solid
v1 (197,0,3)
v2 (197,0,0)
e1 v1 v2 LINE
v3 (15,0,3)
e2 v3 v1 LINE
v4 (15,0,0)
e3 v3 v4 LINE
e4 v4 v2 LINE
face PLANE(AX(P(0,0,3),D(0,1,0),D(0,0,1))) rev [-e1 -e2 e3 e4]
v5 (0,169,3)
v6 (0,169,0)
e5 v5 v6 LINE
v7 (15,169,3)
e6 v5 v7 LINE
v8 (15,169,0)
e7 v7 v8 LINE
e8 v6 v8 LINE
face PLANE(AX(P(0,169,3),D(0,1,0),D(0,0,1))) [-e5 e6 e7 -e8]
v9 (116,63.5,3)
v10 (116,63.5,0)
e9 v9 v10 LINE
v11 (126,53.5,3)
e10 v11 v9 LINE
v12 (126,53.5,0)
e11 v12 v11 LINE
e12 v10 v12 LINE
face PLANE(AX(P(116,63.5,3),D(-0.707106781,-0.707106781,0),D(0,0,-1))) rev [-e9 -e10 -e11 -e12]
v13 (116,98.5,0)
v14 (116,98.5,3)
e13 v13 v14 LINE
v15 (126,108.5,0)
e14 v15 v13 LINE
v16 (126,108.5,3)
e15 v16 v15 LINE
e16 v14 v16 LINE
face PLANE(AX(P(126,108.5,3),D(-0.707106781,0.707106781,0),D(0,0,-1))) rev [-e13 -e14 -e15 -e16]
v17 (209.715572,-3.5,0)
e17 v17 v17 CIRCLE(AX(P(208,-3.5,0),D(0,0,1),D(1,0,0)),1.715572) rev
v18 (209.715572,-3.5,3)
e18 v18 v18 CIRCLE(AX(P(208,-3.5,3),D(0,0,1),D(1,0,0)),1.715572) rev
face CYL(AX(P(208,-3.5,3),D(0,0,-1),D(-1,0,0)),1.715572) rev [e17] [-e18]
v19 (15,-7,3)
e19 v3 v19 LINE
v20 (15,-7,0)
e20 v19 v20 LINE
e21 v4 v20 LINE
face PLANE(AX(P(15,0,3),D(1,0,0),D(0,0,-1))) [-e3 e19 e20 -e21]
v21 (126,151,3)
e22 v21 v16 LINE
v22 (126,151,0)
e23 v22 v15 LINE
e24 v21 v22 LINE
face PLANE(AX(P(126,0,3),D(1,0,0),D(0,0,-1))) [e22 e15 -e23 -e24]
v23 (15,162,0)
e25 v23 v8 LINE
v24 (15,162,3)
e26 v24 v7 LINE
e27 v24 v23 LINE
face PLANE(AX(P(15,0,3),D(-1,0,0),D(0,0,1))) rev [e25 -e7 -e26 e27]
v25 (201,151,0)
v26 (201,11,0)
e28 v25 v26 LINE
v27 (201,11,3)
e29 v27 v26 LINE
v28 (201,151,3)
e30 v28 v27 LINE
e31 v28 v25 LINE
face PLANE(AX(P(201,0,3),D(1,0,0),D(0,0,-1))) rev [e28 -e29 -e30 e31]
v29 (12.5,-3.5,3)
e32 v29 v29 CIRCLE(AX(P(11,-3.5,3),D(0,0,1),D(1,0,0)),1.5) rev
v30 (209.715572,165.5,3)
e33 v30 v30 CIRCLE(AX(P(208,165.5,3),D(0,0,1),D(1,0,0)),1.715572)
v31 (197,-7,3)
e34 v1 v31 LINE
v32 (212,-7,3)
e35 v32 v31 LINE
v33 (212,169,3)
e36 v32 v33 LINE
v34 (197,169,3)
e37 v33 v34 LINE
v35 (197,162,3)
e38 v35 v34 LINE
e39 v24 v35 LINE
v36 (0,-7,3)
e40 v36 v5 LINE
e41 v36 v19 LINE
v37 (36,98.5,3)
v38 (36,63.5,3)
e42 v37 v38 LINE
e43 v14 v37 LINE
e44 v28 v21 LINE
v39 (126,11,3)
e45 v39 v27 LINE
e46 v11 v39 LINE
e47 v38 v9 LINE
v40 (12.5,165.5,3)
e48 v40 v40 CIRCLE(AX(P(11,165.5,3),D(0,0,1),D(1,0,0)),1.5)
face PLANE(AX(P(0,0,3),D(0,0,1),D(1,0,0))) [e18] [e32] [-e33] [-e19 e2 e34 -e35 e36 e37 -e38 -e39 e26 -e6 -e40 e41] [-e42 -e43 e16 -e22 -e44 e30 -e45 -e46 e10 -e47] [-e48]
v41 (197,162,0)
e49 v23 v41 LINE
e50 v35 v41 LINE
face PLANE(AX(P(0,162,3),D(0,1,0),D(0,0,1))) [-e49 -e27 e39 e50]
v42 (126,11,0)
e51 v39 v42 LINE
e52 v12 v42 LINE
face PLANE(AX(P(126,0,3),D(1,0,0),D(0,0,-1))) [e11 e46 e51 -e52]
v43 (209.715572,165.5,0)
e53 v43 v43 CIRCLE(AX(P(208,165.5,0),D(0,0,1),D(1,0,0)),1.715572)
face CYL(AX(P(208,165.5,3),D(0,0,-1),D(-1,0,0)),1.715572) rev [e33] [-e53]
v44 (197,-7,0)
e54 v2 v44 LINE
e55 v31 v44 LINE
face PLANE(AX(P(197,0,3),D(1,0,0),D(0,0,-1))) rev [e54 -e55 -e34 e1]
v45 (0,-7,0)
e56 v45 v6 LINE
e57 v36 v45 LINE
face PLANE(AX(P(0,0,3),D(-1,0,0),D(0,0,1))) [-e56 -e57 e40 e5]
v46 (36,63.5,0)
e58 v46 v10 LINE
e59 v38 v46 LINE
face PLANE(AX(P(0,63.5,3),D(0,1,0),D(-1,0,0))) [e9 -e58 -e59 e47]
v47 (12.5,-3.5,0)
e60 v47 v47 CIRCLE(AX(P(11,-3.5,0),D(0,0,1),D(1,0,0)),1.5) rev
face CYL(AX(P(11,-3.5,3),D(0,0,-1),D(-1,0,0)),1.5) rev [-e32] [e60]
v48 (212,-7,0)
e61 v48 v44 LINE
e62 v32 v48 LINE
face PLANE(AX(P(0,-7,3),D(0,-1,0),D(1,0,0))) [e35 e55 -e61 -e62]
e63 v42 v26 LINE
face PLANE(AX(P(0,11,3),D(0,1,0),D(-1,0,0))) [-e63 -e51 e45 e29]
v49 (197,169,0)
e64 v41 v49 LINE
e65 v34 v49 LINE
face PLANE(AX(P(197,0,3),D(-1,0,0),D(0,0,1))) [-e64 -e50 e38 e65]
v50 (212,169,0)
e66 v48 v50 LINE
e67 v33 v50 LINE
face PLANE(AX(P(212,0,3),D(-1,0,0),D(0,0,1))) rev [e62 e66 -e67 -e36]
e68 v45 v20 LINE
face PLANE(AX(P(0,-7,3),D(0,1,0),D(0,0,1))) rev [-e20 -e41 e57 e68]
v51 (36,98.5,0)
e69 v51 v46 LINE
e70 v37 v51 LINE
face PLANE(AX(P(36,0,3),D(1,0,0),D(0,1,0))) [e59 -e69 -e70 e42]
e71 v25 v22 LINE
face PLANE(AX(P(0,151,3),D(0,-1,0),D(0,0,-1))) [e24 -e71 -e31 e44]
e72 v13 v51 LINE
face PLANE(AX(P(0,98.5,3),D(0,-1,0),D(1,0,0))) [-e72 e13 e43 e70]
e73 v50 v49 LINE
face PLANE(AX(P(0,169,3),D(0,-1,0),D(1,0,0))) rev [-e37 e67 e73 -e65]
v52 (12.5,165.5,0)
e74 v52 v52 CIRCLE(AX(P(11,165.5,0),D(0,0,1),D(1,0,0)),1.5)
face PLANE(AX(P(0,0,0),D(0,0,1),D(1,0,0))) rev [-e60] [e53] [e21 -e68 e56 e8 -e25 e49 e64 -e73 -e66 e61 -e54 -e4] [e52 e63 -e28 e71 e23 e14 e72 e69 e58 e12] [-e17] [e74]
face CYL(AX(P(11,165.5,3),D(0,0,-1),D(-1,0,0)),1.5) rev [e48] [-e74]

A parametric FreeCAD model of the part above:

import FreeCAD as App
import Part
import Sketcher

V = App.Vector
Q = App.Units.Quantity


def edges_at(feature, points):
    """Names of the edges that pass closest to the given points."""
    edges = feature.Shape.Edges
    near = lambda p: min(range(len(edges)), key=lambda i: edges[i].distToShape(Part.Vertex(*p))[0])
    return sorted({f"Edge{near(p) + 1}" for p in points})


def add_polygon(sketch, points):
    """Adds a closed chain of lines whose ends are joined by coincident constraints."""
    first, n = sketch.GeometryCount, len(points)
    for a, b in zip(points, points[1:] + points[:1]):
        sketch.addGeometry(Part.LineSegment(App.Vector(*a, 0), App.Vector(*b, 0)), False)
    for i in range(n):
        sketch.addConstraint(Sketcher.Constraint("Coincident", first + i, 2, first + (i + 1) % n, 1))

doc = App.newDocument("Part")
body = doc.addObject("PartDesign::Body", "Body")

sketch1 = body.newObject("Sketcher::SketchObject", "Sketch")
sketch1.AttachmentSupport = (doc.getObject("XY_Plane"), [""])
sketch1.MapMode = "FlatFace"
add_polygon(sketch1, [(0, -7), (15, -7), (15, 0), (197, 0), (197, -7), (212, -7), (212, 169), (197, 169), (197, 162), (15, 162), (15, 169), (0, 169)])
add_polygon(sketch1, [(126, 98.5), (126, 151), (201, 151), (201, 11), (126, 11), (126, 63.5), (36, 63.5), (36, 98.5)])
sketch1.addGeometry(Part.Circle(V(208, 165.5, 0), V(0, 0, 1), 1.7), False)
sketch1.addGeometry(Part.Circle(V(11, 165.5, 0), V(0, 0, 1), 1.5), False)
sketch1.addGeometry(Part.Circle(V(11, -3.5, 0), V(0, 0, 1), 1.5), False)
sketch1.addGeometry(Part.Circle(V(208, -3.5, 0), V(0, 0, 1), 1.7), False)
sketch1.addConstraint([
    Sketcher.Constraint("Horizontal", 0),
    Sketcher.Constraint("Vertical", 1),
    Sketcher.Constraint("Horizontal", 2),
    Sketcher.Constraint("Vertical", 3),
    Sketcher.Constraint("Horizontal", 4),
    Sketcher.Constraint("Vertical", 5),
    Sketcher.Constraint("Horizontal", 6),
    Sketcher.Constraint("Vertical", 7),
    Sketcher.Constraint("Horizontal", 8),
    Sketcher.Constraint("Vertical", 9),
    Sketcher.Constraint("Horizontal", 10),
    Sketcher.Constraint("Vertical", 11),
    Sketcher.Constraint("Vertical", 12),
    Sketcher.Constraint("Horizontal", 13),
    Sketcher.Constraint("Vertical", 14),
    Sketcher.Constraint("Horizontal", 15),
    Sketcher.Constraint("Vertical", 16),
    Sketcher.Constraint("Horizontal", 17),
    Sketcher.Constraint("Vertical", 18),
    Sketcher.Constraint("Horizontal", 19),
    Sketcher.Constraint("Equal", 21, 22),
    Sketcher.Constraint("Equal", 20, 23),
    Sketcher.Constraint("PointOnObject", 1, 2, -1),
    Sketcher.Constraint("PointOnObject", 10, 2, -2),
    Sketcher.Constraint("Horizontal", 20, 3, 21, 3),
    Sketcher.Constraint("Horizontal", 22, 3, 23, 3),
    Sketcher.Constraint("Horizontal", 0, 2, 3, 2),
    Sketcher.Constraint("Horizontal", 6, 2, 9, 2),
    Sketcher.Constraint("Vertical", 21, 3, 22, 3),
    Sketcher.Constraint("Vertical", 20, 3, 23, 3),
    Sketcher.Constraint("Vertical", 3, 2, 6, 2),
    Sketcher.Constraint("Vertical", 1, 2, 8, 2),
    Sketcher.Constraint("Vertical", 12, 2, 15, 2),
    Sketcher.Constraint("Equal", 0, 4),
    Sketcher.Constraint("Equal", 3, 7),
    Sketcher.Constraint("Equal", 12, 16),
    Sketcher.Constraint("Diameter", 21, Q("3 mm")),
    Sketcher.Constraint("DistanceX", 0, 1, 0, 2, Q("15 mm")),
    Sketcher.Constraint("DistanceX", 2, 1, 2, 2, Q("182 mm")),
    Sketcher.Constraint("DistanceX", 13, 1, 13, 2, Q("75 mm")),
    Sketcher.Constraint("DistanceX", 17, 2, 17, 1, Q("90 mm")),
    Sketcher.Constraint("DistanceY", 1, 1, 1, 2, Q("7 mm")),
    Sketcher.Constraint("DistanceY", 5, 1, 5, 2, Q("176 mm")),
    Sketcher.Constraint("DistanceY", 14, 2, 14, 1, Q("140 mm")),
    Sketcher.Constraint("DistanceY", 18, 1, 18, 2, Q("35 mm")),
    Sketcher.Constraint("DistanceX", -1, 1, 20, 3, Q("208 mm")),
    Sketcher.Constraint("DistanceX", -1, 1, 21, 3, Q("11 mm")),
    Sketcher.Constraint("DistanceX", -1, 1, 12, 2, Q("126 mm")),
    Sketcher.Constraint("DistanceY", -1, 1, 12, 2, Q("151 mm")),
    Sketcher.Constraint("DistanceY", 22, 3, 21, 3, Q("169 mm")),
    Sketcher.Constraint("DistanceY", 22, 3, 17, 2, Q("67 mm")),
    Sketcher.Constraint("Diameter", 20, Q("3.431145 mm")),
])
pad1 = body.newObject("PartDesign::Pad", "Pad")
pad1.Profile = sketch1
pad1.Length = 3
doc.recompute()

chamfer = body.newObject("PartDesign::Chamfer", "Chamfer")
chamfer.Base = (pad1, edges_at(pad1, [(126, 98.5, 1.5), (126, 63.5, 1.5)]))
chamfer.Size = 10

doc.recompute()
